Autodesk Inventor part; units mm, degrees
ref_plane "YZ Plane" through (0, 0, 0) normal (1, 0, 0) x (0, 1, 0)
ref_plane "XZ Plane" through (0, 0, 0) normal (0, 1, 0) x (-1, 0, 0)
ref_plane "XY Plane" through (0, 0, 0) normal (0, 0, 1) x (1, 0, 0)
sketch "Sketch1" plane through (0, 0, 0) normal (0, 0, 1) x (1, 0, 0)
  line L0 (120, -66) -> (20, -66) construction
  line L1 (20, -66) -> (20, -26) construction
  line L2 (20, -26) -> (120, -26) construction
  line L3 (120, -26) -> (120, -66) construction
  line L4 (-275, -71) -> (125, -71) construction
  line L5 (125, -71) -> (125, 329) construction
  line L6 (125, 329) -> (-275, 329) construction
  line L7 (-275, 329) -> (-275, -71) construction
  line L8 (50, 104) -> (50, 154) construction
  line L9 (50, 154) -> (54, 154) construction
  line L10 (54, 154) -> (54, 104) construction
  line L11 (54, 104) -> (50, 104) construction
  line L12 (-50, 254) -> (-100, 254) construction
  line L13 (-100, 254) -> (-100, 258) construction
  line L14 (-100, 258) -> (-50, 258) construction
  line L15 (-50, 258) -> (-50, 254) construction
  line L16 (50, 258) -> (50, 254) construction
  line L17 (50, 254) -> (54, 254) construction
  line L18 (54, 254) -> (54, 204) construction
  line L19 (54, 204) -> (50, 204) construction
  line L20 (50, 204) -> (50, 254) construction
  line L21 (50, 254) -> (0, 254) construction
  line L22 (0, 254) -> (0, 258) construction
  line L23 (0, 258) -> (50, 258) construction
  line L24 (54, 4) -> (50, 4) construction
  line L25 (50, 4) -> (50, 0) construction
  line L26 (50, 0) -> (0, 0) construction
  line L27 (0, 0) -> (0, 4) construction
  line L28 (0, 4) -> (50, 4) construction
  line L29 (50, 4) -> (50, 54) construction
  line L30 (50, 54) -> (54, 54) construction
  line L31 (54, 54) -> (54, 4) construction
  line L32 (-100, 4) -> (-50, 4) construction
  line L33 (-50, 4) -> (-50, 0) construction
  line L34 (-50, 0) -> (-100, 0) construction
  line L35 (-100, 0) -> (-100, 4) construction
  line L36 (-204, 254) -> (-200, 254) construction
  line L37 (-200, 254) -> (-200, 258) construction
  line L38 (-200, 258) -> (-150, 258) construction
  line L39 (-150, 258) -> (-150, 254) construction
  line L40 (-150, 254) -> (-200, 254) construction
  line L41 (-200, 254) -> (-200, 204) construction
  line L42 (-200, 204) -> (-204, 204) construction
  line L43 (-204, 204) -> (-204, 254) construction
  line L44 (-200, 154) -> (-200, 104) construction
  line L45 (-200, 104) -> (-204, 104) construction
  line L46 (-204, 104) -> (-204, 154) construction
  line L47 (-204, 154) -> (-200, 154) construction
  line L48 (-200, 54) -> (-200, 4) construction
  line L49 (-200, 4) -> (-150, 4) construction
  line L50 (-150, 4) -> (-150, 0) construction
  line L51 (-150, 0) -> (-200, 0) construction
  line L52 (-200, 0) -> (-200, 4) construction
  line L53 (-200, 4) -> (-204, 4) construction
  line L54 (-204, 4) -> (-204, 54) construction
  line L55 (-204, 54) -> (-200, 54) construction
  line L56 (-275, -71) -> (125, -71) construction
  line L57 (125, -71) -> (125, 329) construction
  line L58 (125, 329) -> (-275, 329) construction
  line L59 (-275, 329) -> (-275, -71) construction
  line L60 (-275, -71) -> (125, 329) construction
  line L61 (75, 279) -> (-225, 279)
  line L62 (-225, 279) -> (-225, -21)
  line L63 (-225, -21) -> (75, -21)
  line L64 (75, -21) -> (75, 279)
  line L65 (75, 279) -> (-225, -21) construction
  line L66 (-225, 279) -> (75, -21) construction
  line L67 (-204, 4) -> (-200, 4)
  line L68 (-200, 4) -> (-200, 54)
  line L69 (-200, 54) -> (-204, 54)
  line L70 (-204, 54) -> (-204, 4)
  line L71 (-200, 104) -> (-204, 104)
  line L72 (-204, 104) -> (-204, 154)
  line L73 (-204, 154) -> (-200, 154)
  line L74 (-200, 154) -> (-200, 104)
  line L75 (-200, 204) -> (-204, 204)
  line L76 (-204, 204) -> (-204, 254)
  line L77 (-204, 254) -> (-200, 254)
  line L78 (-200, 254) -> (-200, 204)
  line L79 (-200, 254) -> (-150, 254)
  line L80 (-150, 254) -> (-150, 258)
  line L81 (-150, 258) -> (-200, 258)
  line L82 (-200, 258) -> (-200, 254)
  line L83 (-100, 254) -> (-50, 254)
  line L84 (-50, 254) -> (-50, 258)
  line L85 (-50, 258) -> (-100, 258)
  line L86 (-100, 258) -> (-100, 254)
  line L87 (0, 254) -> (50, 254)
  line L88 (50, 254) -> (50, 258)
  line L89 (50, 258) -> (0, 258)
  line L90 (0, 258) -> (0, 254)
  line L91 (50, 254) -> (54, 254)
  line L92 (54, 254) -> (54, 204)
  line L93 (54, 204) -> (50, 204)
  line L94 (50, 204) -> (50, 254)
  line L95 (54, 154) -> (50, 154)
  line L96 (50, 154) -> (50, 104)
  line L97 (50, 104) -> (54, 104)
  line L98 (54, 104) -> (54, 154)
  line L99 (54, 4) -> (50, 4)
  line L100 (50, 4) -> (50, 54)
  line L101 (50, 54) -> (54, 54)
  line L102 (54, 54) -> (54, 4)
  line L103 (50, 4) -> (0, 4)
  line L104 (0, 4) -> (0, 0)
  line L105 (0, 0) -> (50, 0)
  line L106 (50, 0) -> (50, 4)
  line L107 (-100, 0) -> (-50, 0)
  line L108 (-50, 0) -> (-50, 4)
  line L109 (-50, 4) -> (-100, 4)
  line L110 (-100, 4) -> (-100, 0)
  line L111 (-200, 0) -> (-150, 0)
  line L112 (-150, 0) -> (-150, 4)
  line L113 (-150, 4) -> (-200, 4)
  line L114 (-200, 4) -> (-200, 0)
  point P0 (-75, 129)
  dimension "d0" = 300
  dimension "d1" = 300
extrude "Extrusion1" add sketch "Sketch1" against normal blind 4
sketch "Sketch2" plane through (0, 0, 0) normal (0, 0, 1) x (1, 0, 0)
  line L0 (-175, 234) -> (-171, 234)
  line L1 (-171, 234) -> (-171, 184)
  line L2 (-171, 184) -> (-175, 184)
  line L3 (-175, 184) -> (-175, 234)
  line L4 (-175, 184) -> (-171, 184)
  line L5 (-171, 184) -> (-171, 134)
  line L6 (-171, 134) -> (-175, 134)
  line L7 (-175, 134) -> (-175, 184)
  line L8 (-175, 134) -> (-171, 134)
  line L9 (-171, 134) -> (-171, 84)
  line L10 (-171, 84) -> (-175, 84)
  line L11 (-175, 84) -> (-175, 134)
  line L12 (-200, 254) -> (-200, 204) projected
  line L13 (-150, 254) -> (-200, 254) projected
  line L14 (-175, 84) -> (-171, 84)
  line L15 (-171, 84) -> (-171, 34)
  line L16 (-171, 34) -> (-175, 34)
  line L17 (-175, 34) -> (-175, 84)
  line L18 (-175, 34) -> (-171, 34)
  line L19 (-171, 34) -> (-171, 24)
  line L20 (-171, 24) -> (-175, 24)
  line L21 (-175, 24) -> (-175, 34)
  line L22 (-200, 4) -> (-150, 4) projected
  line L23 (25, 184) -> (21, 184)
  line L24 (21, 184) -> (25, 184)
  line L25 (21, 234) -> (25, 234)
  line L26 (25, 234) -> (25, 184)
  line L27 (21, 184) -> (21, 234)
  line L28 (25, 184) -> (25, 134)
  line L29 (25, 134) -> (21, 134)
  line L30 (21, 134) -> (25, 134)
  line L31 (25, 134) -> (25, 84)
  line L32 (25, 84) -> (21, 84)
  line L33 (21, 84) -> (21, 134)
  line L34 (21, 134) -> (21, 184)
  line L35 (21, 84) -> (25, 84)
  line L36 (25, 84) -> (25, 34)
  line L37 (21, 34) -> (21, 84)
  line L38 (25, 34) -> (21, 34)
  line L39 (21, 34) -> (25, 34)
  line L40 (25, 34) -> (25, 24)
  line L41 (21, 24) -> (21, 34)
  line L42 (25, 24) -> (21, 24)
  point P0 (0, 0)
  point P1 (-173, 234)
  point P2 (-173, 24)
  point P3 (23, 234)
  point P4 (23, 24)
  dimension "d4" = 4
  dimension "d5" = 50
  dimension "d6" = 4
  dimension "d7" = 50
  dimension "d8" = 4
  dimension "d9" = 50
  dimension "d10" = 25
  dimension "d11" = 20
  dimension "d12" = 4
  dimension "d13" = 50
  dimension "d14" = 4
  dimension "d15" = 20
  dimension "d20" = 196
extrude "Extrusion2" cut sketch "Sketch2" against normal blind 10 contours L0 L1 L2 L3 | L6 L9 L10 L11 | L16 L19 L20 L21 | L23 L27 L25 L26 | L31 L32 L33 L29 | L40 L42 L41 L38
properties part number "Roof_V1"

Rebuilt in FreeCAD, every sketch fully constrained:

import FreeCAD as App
import Part
import Sketcher

V = App.Vector


def add_polygon(sketch, points):
    """Adds a closed chain of lines whose ends are joined by coincident constraints."""
    first, n = sketch.GeometryCount, len(points)
    for a, b in zip(points, points[1:] + points[:1]):
        sketch.addGeometry(Part.LineSegment(App.Vector(*a, 0), App.Vector(*b, 0)), False)
    for i in range(n):
        sketch.addConstraint(Sketcher.Constraint("Coincident", first + i, 2, first + (i + 1) % n, 1))

doc = App.newDocument("Part")
body = doc.addObject("PartDesign::Body", "Body")

# Sketch on XY plane
sketch1 = body.newObject("Sketcher::SketchObject", "Sketch")
sketch1.AttachmentSupport = (doc.getObject("XY_Plane"), [""])
sketch1.MapMode = "FlatFace"
add_polygon(sketch1, [(75, -21), (75, 279), (-225, 279), (-225, -21)])  # lines 0-3
add_polygon(sketch1, [(-200, 0), (-200, 4), (-150, 4), (-150, 0)])  # lines 4-7
add_polygon(sketch1, [(-200, 4), (-204, 4), (-204, 54), (-200, 54)])  # lines 8-11
add_polygon(sketch1, [(-50, 0), (-100, 0), (-100, 4), (-50, 4)])  # lines 12-15
add_polygon(sketch1, [(0, 4), (50, 4), (50, 0), (0, 0)])  # lines 16-19
add_polygon(sketch1, [(54, 54), (54, 4), (50, 4), (50, 54)])  # lines 20-23
add_polygon(sketch1, [(-200, 154), (-200, 104), (-204, 104), (-204, 154)])  # lines 24-27
add_polygon(sketch1, [(-200, 254), (-200, 204), (-204, 204), (-204, 254)])  # lines 28-31
add_polygon(sketch1, [(-150, 254), (-200, 254), (-200, 258), (-150, 258)])  # lines 32-35
add_polygon(sketch1, [(50, 154), (54, 154), (54, 104), (50, 104)])  # lines 36-39
add_polygon(sketch1, [(-50, 254), (-100, 254), (-100, 258), (-50, 258)])  # lines 40-43
add_polygon(sketch1, [(50, 204), (50, 254), (54, 254), (54, 204)])  # lines 44-47
add_polygon(sketch1, [(50, 254), (0, 254), (0, 258), (50, 258)])  # lines 48-51
sketch1.addConstraint([
    Sketcher.Constraint("Vertical", 0),
    Sketcher.Constraint("Horizontal", 1),
    Sketcher.Constraint("Vertical", 2),
    Sketcher.Constraint("Horizontal", 3),
    Sketcher.Constraint("Vertical", 4),
    Sketcher.Constraint("Horizontal", 5),
    Sketcher.Constraint("Vertical", 6),
    Sketcher.Constraint("Horizontal", 7),
    Sketcher.Constraint("Horizontal", 8),
    Sketcher.Constraint("Vertical", 9),
    Sketcher.Constraint("Horizontal", 10),
    Sketcher.Constraint("Vertical", 11),
    Sketcher.Constraint("Horizontal", 12),
    Sketcher.Constraint("Vertical", 13),
    Sketcher.Constraint("Horizontal", 14),
    Sketcher.Constraint("Vertical", 15),
    Sketcher.Constraint("Horizontal", 16),
    Sketcher.Constraint("Vertical", 17),
    Sketcher.Constraint("Horizontal", 18),
    Sketcher.Constraint("Vertical", 19),
    Sketcher.Constraint("Vertical", 20),
    Sketcher.Constraint("Horizontal", 21),
    Sketcher.Constraint("Vertical", 22),
    Sketcher.Constraint("Horizontal", 23),
    Sketcher.Constraint("Vertical", 24),
    Sketcher.Constraint("Horizontal", 25),
    Sketcher.Constraint("Vertical", 26),
    Sketcher.Constraint("Horizontal", 27),
    Sketcher.Constraint("Vertical", 28),
    Sketcher.Constraint("Horizontal", 29),
    Sketcher.Constraint("Vertical", 30),
    Sketcher.Constraint("Horizontal", 31),
    Sketcher.Constraint("Horizontal", 32),
    Sketcher.Constraint("Vertical", 33),
    Sketcher.Constraint("Horizontal", 34),
    Sketcher.Constraint("Vertical", 35),
    Sketcher.Constraint("Horizontal", 36),
    Sketcher.Constraint("Vertical", 37),
    Sketcher.Constraint("Horizontal", 38),
    Sketcher.Constraint("Vertical", 39),
    Sketcher.Constraint("Horizontal", 40),
    Sketcher.Constraint("Vertical", 41),
    Sketcher.Constraint("Horizontal", 42),
    Sketcher.Constraint("Vertical", 43),
    Sketcher.Constraint("Vertical", 44),
    Sketcher.Constraint("Horizontal", 45),
    Sketcher.Constraint("Vertical", 46),
    Sketcher.Constraint("Horizontal", 47),
    Sketcher.Constraint("Horizontal", 48),
    Sketcher.Constraint("Vertical", 49),
    Sketcher.Constraint("Horizontal", 50),
    Sketcher.Constraint("Vertical", 51),
    Sketcher.Constraint("Coincident", 18, 2, -1, 1),
    Sketcher.Constraint("Coincident", 11, 2, 4, 2),
    Sketcher.Constraint("Coincident", 21, 2, 16, 2),
    Sketcher.Constraint("Coincident", 32, 2, 31, 2),
    Sketcher.Constraint("Coincident", 51, 2, 44, 2),
    Sketcher.Constraint("Symmetric", 15, 2, 17, 2, -1, 1),
    Sketcher.Constraint("Symmetric", 43, 2, 44, 2, -2),
    Sketcher.Constraint("PointOnObject", 6, 2, -1),
    Sketcher.Constraint("PointOnObject", 48, 2, -2),
    Sketcher.Constraint("Horizontal", 11, 2, 13, 2),
    Sketcher.Constraint("Horizontal", 14, 2, 16, 2),
    Sketcher.Constraint("Horizontal", 10, 2, 22, 2),
    Sketcher.Constraint("Horizontal", 27, 2, 36, 2),
    Sketcher.Constraint("Horizontal", 25, 2, 37, 2),
    Sketcher.Constraint("Horizontal", 35, 2, 40, 2),
    Sketcher.Constraint("Horizontal", 34, 2, 41, 2),
    Sketcher.Constraint("Horizontal", 29, 2, 46, 2),
    Sketcher.Constraint("Horizontal", 42, 2, 49, 2),
    Sketcher.Constraint("Vertical", 11, 2, 24, 2),
    Sketcher.Constraint("Vertical", 9, 2, 25, 2),
    Sketcher.Constraint("Vertical", 27, 2, 28, 2),
    Sketcher.Constraint("Vertical", 26, 2, 29, 2),
    Sketcher.Constraint("Vertical", 6, 2, 34, 2),
    Sketcher.Constraint("Vertical", 23, 2, 36, 2),
    Sketcher.Constraint("Vertical", 22, 2, 38, 2),
    Sketcher.Constraint("Vertical", 13, 2, 40, 2),
    Sketcher.Constraint("Vertical", 15, 2, 42, 2),
    Sketcher.Constraint("Vertical", 37, 2, 45, 2),
    Sketcher.Constraint("Equal", 7, 12),
    Sketcher.Constraint("Equal", 14, 16),
    Sketcher.Constraint("Equal", 10, 21),
    Sketcher.Constraint("Equal", 3, 0),
    Sketcher.Constraint("Equal", 47, 4),
    Sketcher.Constraint("Equal", 50, 9),
    Sketcher.Constraint("Equal", 22, 24),
    Sketcher.Constraint("Equal", 26, 28),
    Sketcher.Constraint("Equal", 19, 33),
    Sketcher.Constraint("DistanceX", 1, 2, 1, 1, 300.0),
    Sketcher.Constraint("DistanceX", 5, 1, 5, 2, 50.0),
    Sketcher.Constraint("DistanceX", 8, 2, 8, 1, 4.0),
    Sketcher.Constraint("DistanceX", -1, 1, 0, 2, 75.0),
    Sketcher.Constraint("DistanceY", -1, 1, 0, 2, 279.0),
    Sketcher.Constraint("DistanceX", 4, 2, -1, 1, 200.0),
    Sketcher.Constraint("DistanceY", -1, 1, 24, 2, 104.0),
    Sketcher.Constraint("DistanceY", -1, 1, 28, 2, 204.0),
])
pad1 = body.newObject("PartDesign::Pad", "Pad")
pad1.Profile = sketch1
pad1.Length = 4
pad1.Reversed = True

# Sketch on XY plane
sketch2 = body.newObject("Sketcher::SketchObject", "Sketch001")
sketch2.AttachmentSupport = (doc.getObject("XY_Plane"), [""])
sketch2.MapMode = "FlatFace"
add_polygon(sketch2, [(-171, 234), (-175, 234), (-175, 184), (-171, 184)])  # lines 0-3
add_polygon(sketch2, [(-171, 134), (-175, 134), (-175, 84), (-171, 84)])  # lines 4-7
add_polygon(sketch2, [(-171, 34), (-175, 34), (-175, 24), (-171, 24)])  # lines 8-11
add_polygon(sketch2, [(21, 184), (25, 184), (25, 234), (21, 234)])  # lines 12-15
add_polygon(sketch2, [(25, 84), (25, 134), (21, 134), (21, 84)])  # lines 16-19
add_polygon(sketch2, [(25, 24), (25, 34), (21, 34), (21, 24)])  # lines 20-23
sketch2.addConstraint([
    Sketcher.Constraint("Horizontal", 0),
    Sketcher.Constraint("Vertical", 1),
    Sketcher.Constraint("Horizontal", 2),
    Sketcher.Constraint("Vertical", 3),
    Sketcher.Constraint("Horizontal", 4),
    Sketcher.Constraint("Vertical", 5),
    Sketcher.Constraint("Horizontal", 6),
    Sketcher.Constraint("Vertical", 7),
    Sketcher.Constraint("Horizontal", 8),
    Sketcher.Constraint("Vertical", 9),
    Sketcher.Constraint("Horizontal", 10),
    Sketcher.Constraint("Vertical", 11),
    Sketcher.Constraint("Horizontal", 12),
    Sketcher.Constraint("Vertical", 13),
    Sketcher.Constraint("Horizontal", 14),
    Sketcher.Constraint("Vertical", 15),
    Sketcher.Constraint("Vertical", 16),
    Sketcher.Constraint("Horizontal", 17),
    Sketcher.Constraint("Vertical", 18),
    Sketcher.Constraint("Horizontal", 19),
    Sketcher.Constraint("Vertical", 20),
    Sketcher.Constraint("Horizontal", 21),
    Sketcher.Constraint("Vertical", 22),
    Sketcher.Constraint("Horizontal", 23),
    Sketcher.Constraint("Horizontal", 2, 2, 12, 2),
    Sketcher.Constraint("Horizontal", 3, 2, 13, 2),
    Sketcher.Constraint("Horizontal", 7, 2, 16, 2),
    Sketcher.Constraint("Horizontal", 6, 2, 18, 2),
    Sketcher.Constraint("Horizontal", 11, 2, 20, 2),
    Sketcher.Constraint("Horizontal", 10, 2, 22, 2),
    Sketcher.Constraint("Vertical", 1, 2, 4, 2),
    Sketcher.Constraint("Vertical", 3, 2, 6, 2),
    Sketcher.Constraint("Vertical", 5, 2, 8, 2),
    Sketcher.Constraint("Vertical", 7, 2, 10, 2),
    Sketcher.Constraint("Vertical", 13, 2, 16, 2),
    Sketcher.Constraint("Vertical", 15, 2, 17, 2),
    Sketcher.Constraint("Vertical", 19, 2, 20, 2),
    Sketcher.Constraint("Vertical", 18, 2, 21, 2),
    Sketcher.Constraint("Equal", 10, 12),
    Sketcher.Constraint("Equal", 3, 5),
    Sketcher.Constraint("DistanceX", 0, 2, 0, 1, 4.0),
    Sketcher.Constraint("DistanceY", 1, 2, 1, 1, 50.0),
    Sketcher.Constraint("DistanceY", 9, 2, 9, 1, 10.0),
    Sketcher.Constraint("DistanceX", -1, 1, 12, 2, 25.0),
    Sketcher.Constraint("DistanceY", 4, 2, 1, 2, 50.0),
    Sketcher.Constraint("DistanceY", 8, 2, 5, 2, 50.0),
    Sketcher.Constraint("DistanceX", 2, 2, 12, 2, 196.0),
    Sketcher.Constraint("DistanceY", -1, 1, 0, 2, 234.0),
])
pocket1 = body.newObject("PartDesign::Pocket", "Pocket")
pocket1.Profile = sketch2
pocket1.Length = 10

doc.recompute()
